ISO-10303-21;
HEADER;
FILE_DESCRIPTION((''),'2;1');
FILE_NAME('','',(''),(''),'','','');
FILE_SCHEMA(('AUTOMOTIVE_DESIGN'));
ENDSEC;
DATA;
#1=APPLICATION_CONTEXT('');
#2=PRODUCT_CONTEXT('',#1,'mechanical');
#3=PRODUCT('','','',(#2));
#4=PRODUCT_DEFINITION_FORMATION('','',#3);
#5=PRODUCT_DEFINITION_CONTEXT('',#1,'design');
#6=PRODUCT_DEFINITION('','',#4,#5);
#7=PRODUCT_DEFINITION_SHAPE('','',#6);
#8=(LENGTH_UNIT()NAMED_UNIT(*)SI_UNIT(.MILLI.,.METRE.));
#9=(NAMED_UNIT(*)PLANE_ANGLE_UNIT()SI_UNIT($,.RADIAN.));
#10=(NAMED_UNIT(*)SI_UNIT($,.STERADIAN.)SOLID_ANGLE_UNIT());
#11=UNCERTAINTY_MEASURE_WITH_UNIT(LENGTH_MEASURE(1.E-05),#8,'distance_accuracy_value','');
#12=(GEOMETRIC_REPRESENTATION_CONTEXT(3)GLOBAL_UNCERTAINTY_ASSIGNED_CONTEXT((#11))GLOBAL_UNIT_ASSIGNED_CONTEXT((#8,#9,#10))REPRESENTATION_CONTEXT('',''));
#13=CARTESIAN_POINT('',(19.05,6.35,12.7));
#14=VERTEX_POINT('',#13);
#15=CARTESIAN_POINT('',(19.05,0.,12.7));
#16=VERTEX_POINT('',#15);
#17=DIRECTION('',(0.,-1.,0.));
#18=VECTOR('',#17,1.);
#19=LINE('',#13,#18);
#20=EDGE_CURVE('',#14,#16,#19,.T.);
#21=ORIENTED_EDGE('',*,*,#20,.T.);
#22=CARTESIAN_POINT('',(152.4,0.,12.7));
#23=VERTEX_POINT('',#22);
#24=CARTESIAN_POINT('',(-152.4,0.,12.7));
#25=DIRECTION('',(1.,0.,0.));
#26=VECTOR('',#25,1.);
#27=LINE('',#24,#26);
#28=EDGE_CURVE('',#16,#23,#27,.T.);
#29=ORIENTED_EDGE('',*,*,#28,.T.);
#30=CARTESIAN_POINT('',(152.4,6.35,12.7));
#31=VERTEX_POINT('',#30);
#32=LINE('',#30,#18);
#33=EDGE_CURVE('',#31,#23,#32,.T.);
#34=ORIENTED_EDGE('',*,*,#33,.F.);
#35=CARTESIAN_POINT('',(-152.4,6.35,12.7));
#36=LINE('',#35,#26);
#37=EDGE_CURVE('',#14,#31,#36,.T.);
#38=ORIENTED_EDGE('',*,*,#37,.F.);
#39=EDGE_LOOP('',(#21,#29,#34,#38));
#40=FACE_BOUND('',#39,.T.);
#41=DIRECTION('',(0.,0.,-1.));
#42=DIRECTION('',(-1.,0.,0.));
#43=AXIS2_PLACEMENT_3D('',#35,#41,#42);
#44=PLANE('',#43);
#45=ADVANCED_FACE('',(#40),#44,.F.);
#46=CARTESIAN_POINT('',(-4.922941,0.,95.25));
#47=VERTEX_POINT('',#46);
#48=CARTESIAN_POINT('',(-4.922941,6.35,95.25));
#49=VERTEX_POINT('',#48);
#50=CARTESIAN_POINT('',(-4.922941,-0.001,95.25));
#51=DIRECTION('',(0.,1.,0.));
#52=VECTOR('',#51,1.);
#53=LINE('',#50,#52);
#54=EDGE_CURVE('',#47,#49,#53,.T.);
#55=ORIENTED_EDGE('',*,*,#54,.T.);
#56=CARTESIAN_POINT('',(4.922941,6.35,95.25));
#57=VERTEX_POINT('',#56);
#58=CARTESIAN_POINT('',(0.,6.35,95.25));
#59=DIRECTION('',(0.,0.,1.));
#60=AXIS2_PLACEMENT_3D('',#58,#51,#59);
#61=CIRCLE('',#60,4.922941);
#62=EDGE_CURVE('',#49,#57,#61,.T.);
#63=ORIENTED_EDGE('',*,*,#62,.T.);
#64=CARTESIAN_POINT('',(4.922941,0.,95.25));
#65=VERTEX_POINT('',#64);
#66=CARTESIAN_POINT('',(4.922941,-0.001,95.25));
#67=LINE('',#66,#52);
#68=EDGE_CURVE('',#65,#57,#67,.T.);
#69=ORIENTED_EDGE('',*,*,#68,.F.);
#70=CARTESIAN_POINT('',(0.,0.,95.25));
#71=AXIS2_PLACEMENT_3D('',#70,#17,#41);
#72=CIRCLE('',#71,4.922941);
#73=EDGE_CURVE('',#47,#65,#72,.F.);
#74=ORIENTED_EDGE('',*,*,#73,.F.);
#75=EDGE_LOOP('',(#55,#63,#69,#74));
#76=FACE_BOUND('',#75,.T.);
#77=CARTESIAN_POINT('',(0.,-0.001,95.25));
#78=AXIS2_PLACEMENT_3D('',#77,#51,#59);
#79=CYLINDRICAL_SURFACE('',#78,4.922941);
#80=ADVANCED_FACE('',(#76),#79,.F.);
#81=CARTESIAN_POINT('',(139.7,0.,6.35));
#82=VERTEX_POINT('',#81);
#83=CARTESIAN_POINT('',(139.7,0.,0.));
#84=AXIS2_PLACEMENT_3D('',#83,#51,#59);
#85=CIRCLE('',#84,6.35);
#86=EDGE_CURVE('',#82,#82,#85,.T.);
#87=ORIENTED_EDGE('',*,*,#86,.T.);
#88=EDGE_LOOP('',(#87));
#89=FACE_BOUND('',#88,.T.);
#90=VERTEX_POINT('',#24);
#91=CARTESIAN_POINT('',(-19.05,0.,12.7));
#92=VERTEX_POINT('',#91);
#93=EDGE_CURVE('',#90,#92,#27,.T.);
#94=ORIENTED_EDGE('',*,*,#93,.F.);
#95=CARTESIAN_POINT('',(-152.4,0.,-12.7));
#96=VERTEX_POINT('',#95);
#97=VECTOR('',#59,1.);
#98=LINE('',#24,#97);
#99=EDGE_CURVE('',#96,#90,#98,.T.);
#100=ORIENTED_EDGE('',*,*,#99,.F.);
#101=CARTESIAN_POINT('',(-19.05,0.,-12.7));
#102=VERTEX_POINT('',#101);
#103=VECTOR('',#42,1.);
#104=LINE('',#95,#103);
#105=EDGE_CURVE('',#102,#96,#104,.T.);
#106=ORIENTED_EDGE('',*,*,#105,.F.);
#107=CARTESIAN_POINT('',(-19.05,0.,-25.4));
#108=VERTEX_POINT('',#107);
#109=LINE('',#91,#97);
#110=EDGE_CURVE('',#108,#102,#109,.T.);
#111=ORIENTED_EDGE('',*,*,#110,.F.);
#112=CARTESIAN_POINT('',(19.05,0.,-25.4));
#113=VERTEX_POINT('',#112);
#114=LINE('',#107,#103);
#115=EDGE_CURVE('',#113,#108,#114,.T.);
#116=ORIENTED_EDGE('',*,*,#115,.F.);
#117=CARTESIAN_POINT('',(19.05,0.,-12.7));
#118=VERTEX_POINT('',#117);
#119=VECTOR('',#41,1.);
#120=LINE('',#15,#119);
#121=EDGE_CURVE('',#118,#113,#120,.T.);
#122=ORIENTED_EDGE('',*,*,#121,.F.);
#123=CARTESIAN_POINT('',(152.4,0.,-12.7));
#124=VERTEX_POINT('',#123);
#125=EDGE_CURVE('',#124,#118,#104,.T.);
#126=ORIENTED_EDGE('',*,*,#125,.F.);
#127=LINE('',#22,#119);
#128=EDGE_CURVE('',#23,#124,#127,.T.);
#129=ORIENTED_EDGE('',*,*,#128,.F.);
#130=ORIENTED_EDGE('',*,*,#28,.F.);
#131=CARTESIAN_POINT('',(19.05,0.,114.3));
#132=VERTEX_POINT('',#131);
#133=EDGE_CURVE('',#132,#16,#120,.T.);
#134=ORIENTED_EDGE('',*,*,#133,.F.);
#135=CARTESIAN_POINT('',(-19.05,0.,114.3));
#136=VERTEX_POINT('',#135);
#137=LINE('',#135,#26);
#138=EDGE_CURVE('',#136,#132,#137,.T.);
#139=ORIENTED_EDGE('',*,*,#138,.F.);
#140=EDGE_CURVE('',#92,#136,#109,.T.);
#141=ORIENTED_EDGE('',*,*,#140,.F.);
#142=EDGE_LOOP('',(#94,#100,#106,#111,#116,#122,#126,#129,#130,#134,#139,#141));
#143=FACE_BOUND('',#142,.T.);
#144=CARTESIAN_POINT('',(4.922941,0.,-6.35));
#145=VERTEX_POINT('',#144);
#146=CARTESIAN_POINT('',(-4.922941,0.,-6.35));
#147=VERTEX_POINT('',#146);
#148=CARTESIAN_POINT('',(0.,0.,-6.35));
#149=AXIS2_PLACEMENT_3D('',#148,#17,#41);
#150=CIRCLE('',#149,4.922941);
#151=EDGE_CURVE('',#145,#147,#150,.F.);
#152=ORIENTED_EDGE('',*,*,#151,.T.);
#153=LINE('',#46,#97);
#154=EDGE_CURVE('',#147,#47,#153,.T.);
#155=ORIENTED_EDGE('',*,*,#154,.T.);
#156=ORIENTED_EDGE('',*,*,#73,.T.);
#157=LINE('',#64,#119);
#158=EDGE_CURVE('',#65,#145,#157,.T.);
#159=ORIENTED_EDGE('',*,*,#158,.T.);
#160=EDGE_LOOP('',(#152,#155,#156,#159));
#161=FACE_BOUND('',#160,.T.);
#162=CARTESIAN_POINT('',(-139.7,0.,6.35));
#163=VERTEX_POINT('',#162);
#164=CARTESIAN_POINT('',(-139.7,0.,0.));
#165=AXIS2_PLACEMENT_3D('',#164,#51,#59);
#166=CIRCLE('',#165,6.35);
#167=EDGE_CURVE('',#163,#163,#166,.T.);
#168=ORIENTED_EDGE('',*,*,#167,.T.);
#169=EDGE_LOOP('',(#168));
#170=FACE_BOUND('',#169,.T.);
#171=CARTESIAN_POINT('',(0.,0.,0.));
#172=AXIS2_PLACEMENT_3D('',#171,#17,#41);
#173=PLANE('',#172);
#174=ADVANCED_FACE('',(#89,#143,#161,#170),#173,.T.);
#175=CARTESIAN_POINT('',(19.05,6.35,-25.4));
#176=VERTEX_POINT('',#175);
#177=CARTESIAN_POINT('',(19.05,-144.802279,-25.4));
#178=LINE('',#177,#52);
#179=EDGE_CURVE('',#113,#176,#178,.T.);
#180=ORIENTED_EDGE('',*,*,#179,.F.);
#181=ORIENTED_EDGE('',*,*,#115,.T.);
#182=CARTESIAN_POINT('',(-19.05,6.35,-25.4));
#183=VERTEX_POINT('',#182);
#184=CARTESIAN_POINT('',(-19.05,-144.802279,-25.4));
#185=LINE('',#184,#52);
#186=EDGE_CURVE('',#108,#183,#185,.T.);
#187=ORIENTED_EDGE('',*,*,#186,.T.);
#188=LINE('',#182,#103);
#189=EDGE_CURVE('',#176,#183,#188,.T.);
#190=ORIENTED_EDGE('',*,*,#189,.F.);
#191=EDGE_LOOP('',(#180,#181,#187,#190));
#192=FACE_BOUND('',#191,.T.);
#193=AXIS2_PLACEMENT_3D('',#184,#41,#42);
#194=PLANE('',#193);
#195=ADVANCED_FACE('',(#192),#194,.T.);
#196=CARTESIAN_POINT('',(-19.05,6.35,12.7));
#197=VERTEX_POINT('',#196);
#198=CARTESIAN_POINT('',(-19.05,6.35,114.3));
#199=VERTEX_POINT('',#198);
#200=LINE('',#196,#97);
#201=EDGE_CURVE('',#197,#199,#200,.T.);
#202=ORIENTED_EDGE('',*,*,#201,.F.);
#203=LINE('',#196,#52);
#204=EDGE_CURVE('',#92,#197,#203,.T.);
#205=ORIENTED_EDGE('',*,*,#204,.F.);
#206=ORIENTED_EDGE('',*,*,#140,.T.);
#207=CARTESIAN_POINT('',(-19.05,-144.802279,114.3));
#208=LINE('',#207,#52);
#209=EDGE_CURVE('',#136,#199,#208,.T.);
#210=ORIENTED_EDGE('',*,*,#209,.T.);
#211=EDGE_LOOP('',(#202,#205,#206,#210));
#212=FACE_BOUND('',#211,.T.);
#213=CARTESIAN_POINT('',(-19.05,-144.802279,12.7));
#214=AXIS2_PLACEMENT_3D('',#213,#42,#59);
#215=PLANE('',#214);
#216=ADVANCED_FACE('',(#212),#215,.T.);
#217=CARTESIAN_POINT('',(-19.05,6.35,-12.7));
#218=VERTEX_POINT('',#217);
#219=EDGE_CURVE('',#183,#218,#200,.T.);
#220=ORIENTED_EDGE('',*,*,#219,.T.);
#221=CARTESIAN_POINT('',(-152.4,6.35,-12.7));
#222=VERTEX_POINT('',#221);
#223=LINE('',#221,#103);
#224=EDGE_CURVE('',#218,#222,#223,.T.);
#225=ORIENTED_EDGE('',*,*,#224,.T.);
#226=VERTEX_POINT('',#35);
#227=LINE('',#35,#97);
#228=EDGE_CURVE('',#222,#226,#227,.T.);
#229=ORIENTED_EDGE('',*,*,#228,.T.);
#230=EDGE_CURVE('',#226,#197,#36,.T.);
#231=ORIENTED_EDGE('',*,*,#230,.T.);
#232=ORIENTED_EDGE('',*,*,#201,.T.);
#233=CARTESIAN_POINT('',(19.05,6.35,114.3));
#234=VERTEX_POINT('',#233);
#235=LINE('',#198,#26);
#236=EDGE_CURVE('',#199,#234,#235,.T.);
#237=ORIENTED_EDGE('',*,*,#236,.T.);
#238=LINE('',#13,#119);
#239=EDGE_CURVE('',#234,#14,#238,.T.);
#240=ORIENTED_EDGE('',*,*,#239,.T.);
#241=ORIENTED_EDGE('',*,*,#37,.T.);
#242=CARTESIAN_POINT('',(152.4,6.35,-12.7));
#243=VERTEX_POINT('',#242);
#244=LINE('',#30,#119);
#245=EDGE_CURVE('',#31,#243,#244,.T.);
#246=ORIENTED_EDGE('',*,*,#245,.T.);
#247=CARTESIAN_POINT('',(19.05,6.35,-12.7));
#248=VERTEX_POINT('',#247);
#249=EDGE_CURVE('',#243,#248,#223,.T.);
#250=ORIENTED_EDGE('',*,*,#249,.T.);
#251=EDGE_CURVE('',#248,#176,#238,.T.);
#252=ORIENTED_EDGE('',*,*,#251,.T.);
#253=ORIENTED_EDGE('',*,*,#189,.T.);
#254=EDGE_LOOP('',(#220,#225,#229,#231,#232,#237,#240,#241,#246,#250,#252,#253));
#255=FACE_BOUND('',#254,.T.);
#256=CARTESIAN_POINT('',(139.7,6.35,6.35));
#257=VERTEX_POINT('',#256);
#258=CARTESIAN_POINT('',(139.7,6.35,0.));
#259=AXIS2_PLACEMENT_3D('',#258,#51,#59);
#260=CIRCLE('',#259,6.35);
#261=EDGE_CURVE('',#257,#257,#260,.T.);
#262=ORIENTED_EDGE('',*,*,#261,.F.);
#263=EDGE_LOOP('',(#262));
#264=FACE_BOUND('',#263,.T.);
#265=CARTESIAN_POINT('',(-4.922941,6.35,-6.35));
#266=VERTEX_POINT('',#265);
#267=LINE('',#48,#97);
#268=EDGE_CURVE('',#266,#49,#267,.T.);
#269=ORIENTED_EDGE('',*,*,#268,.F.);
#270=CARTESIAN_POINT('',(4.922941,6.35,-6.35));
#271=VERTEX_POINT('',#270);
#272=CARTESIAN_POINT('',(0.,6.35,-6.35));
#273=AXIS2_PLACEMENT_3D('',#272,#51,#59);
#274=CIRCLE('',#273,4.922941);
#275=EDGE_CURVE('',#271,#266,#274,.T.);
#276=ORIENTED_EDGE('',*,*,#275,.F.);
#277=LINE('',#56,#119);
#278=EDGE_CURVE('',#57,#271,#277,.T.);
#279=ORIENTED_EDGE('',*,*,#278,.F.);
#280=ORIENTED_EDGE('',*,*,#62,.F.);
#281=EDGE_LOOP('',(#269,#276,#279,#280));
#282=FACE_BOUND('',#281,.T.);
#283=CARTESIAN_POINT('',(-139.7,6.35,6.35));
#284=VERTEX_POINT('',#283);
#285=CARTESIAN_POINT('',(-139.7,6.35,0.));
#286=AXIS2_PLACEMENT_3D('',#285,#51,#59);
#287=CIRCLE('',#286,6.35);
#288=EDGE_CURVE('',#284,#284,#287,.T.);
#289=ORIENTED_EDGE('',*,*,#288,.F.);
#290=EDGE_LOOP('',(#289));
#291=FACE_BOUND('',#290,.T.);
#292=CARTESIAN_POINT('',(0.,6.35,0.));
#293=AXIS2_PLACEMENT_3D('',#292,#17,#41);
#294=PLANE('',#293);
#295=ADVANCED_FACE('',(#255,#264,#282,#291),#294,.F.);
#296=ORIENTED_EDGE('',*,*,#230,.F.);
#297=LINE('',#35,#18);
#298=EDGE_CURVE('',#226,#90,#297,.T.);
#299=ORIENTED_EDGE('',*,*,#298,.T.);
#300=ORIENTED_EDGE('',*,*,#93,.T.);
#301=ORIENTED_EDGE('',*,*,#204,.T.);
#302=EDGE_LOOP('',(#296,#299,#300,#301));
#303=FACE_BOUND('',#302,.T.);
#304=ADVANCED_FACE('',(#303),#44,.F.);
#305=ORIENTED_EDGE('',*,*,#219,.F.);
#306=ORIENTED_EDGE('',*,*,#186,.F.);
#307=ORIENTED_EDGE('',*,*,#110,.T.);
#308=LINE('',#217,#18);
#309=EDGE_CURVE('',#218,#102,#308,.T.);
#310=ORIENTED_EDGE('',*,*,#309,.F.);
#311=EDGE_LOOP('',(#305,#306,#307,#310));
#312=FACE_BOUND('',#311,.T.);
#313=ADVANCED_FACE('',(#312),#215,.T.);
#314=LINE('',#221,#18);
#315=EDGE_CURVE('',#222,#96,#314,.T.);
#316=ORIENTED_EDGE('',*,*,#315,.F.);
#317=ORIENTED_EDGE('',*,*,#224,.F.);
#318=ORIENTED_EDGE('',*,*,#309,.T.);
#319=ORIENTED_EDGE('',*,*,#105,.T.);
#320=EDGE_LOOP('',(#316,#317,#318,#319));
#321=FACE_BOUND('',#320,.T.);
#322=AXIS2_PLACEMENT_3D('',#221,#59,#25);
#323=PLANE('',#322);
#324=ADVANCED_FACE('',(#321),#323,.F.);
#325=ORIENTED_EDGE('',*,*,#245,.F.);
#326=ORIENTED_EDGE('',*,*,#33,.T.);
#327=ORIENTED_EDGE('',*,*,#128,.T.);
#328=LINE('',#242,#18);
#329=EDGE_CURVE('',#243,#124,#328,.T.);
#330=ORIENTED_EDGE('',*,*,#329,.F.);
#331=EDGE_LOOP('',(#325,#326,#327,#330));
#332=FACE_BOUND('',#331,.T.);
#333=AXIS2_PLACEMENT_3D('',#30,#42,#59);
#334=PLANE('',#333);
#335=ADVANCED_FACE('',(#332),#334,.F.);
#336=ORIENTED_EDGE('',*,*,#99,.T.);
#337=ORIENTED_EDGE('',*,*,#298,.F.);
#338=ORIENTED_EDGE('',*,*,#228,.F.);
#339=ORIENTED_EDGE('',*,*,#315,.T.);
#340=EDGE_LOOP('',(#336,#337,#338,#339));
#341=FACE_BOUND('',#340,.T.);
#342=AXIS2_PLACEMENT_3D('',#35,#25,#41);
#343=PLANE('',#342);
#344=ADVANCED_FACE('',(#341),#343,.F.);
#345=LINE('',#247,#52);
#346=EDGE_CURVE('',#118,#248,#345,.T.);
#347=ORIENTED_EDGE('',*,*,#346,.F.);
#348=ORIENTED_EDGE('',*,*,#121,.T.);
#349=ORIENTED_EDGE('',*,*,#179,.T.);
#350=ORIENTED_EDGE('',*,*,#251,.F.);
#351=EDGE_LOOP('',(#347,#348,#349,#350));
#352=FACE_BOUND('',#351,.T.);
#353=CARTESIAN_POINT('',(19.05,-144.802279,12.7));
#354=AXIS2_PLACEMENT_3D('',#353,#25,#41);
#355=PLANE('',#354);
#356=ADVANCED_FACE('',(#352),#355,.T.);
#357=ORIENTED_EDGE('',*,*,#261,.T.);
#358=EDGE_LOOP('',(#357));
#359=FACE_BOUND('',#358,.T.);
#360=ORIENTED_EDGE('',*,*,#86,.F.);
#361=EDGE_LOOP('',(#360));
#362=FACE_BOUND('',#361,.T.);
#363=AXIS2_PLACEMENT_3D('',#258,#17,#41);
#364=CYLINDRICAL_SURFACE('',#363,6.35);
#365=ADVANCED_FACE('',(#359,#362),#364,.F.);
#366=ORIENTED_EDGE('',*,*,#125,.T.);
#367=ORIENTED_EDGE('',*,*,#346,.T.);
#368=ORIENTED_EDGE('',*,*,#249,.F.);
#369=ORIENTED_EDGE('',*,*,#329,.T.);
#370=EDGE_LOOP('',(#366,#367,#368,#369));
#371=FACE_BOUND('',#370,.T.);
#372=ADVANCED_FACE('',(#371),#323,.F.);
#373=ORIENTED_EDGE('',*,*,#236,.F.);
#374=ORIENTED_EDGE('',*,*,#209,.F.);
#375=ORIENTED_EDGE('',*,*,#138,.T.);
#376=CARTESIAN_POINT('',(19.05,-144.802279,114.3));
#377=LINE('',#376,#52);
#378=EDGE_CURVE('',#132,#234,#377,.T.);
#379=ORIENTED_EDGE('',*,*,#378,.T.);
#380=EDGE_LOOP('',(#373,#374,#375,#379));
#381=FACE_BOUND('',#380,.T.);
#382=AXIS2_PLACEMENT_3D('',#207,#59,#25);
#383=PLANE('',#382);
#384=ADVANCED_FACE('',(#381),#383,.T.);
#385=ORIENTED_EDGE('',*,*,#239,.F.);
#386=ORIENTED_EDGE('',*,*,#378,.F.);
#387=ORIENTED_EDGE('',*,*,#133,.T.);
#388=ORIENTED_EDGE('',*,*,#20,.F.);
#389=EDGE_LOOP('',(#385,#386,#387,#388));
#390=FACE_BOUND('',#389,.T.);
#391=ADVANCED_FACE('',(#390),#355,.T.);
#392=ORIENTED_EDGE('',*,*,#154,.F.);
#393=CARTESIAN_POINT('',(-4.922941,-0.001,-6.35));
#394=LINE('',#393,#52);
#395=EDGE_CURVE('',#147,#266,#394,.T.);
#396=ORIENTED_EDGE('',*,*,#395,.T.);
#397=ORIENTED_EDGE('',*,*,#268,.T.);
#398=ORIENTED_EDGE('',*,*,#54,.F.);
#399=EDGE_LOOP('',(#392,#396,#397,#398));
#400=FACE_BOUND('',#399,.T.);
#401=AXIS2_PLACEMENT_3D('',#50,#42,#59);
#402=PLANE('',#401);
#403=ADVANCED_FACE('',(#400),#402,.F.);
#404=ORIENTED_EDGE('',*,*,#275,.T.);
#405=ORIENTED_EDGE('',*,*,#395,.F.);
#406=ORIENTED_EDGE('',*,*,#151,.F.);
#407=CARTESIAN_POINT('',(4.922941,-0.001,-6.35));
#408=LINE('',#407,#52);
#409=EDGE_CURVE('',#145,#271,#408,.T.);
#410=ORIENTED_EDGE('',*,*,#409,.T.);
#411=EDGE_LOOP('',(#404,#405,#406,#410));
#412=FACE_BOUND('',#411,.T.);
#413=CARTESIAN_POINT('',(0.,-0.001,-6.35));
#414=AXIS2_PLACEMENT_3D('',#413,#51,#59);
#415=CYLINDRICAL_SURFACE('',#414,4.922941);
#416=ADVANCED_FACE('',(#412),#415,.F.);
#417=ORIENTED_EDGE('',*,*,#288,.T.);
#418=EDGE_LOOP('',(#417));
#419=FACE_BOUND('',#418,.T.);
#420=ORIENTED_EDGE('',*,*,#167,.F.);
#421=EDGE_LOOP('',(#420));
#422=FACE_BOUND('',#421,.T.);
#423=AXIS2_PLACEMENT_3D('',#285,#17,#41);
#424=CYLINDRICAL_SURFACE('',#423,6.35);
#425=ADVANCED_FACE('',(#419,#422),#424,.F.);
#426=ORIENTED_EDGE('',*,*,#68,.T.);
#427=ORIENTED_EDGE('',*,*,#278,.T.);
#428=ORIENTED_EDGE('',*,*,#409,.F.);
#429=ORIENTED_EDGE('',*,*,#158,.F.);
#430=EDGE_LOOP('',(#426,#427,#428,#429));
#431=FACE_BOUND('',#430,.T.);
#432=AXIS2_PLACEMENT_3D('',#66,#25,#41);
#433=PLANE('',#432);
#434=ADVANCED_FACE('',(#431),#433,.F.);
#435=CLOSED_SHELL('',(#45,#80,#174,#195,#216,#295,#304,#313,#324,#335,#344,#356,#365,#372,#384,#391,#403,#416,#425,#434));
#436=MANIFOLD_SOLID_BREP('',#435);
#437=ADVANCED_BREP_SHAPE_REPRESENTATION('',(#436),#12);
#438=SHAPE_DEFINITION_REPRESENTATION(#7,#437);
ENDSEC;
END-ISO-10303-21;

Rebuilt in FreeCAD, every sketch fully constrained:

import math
import FreeCAD as App
import Part
import Sketcher
from FreeCAD import Vector
Q = App.Units.Quantity


def add_polygon(sketch, points):
    """Adds a closed chain of lines whose ends are joined by coincident constraints."""
    first, n = sketch.GeometryCount, len(points)
    for a, b in zip(points, points[1:] + points[:1]):
        sketch.addGeometry(Part.LineSegment(App.Vector(*a, 0), App.Vector(*b, 0)), False)
    for i in range(n):
        sketch.addConstraint(Sketcher.Constraint("Coincident", first + i, 2, first + (i + 1) % n, 1))

doc = App.newDocument("Part")
params = doc.addObject("Spreadsheet::Sheet", "Params")
for row, (alias, value) in enumerate([
    ("sketch1_diameter", "0.5 in"),
    ("sketch1_width", "12 in"),
    ("sketch1_height", "1 in"),
    ("pad1_length", "0.25 in"),
    ("sketch2_width", "1.5 in"),
    ("sketch2_height", "5.5 in"),
    ("pad2_length", "0.25 in"),
    ("sketch3_height", "4 in"),
], start=1):
    params.set(f"A{row}", alias)
    params.set(f"B{row}", "=" + value)
    params.setAlias(f"B{row}", alias)

body = doc.addObject("PartDesign::Body", "Body")

# Sketch on XZ plane
sketch1 = doc.addObject("Sketcher::SketchObject", "Sketch")
body.addObject(sketch1)
sketch1.AttachmentSupport = (doc.XZ_Plane, [""])
sketch1.MapMode = "FlatFace"
add_polygon(sketch1, [(-152, -13), (-152, 13), (152, 13), (152, -13)])  # lines 0-3
sketch1.addGeometry(Part.Circle(Vector(-140, 0, 0), Vector(0, 0, 1), 6), False)  # 4
sketch1.addGeometry(Part.Circle(Vector(140, 0, 0), Vector(0, 0, 1), 6), False)  # 5
sketch1.addConstraint(Sketcher.Constraint("Vertical", 0))
sketch1.addConstraint(Sketcher.Constraint("Horizontal", 1))
sketch1.addConstraint(Sketcher.Constraint("Vertical", 2))
sketch1.addConstraint(Sketcher.Constraint("Horizontal", 3))
sketch1.addConstraint(Sketcher.Constraint("Equal", 4, 5))
sketch1.addConstraint(Sketcher.Constraint("Symmetric", 4, 3, 5, 3, -1, 1))
sketch1.addConstraint(Sketcher.Constraint("Symmetric", 0, 2, 2, 2, -1, 1))
sketch1.addConstraint(Sketcher.Constraint("PointOnObject", 4, 3, -1))
sketch1.addConstraint(Sketcher.Constraint("Diameter", 4, Q("0.5 in")))
sketch1.addConstraint(Sketcher.Constraint("DistanceX", 1, 1, 1, 2, Q("12 in")))
sketch1.addConstraint(Sketcher.Constraint("DistanceY", 0, 1, 0, 2, Q("1 in")))
sketch1.addConstraint(Sketcher.Constraint("DistanceX", 4, 3, 5, 3, Q("11 in")))
sketch1.setExpression("Constraints[12]", "Params.sketch1_diameter")
sketch1.setExpression("Constraints[13]", "Params.sketch1_width")
sketch1.setExpression("Constraints[14]", "Params.sketch1_height")
pad1 = doc.addObject("PartDesign::Pad", "Pad")
body.addObject(pad1)
pad1.Profile = sketch1
pad1.setExpression("Length", "Params.pad1_length")
pad1.Reversed = True

# Sketch on XZ plane
sketch2 = doc.addObject("Sketcher::SketchObject", "Sketch001")
body.addObject(sketch2)
sketch2.AttachmentSupport = (doc.XZ_Plane, [""])
sketch2.MapMode = "FlatFace"
sketch2.AttachmentOffset = App.Placement(Vector(0, 0, -0.25 * 25.4), App.Rotation())
add_polygon(sketch2, [(-19, 114), (19, 114), (19, -25), (-19, -25)])  # lines 0-3
sketch2.addConstraint(Sketcher.Constraint("Horizontal", 0))
sketch2.addConstraint(Sketcher.Constraint("Vertical", 1))
sketch2.addConstraint(Sketcher.Constraint("Horizontal", 2))
sketch2.addConstraint(Sketcher.Constraint("Vertical", 3))
sketch2.addConstraint(Sketcher.Constraint("DistanceX", 0, 1, 0, 2, Q("1.5 in")))
sketch2.addConstraint(Sketcher.Constraint("DistanceY", 1, 2, 1, 1, Q("5.5 in")))
sketch2.addConstraint(Sketcher.Constraint("DistanceY", 1, 2, -1, 1, Q("1 in")))
sketch2.addConstraint(Sketcher.Constraint("DistanceX", -1, 1, 0, 2, Q("0.75 in")))
sketch2.setExpression("Constraints[8]", "Params.sketch2_width")
sketch2.setExpression("Constraints[9]", "Params.sketch2_height")
pad2 = doc.addObject("PartDesign::Pad", "Pad001")
body.addObject(pad2)
pad2.Profile = sketch2
pad2.setExpression("Length", "Params.pad2_length")

# Sketch on XZ plane
sketch3 = doc.addObject("Sketcher::SketchObject", "Sketch002")
body.addObject(sketch3)
sketch3.AttachmentSupport = (doc.XZ_Plane, [""])
sketch3.MapMode = "FlatFace"
sketch3.AttachmentOffset = App.Placement(Vector(0, 0, -0.25 * 25.4), App.Rotation())
sketch3.addGeometry(Part.LineSegment(Vector(-4.9, -6.3, 0), Vector(-4.9, 95.2, 0)), False)
sketch3.addGeometry(Part.ArcOfCircle(Part.Circle(Vector(0, 95.2, 0), Vector(0, 0, 1), 4.9), math.radians(0), math.radians(180)), False)
sketch3.addGeometry(Part.LineSegment(Vector(4.9, 95.2, 0), Vector(4.9, -6.3, 0)), False)
sketch3.addGeometry(Part.ArcOfCircle(Part.Circle(Vector(0, -6.3, 0), Vector(0, 0, 1), 4.9), math.radians(180), math.radians(360)), False)
sketch3.addConstraint(Sketcher.Constraint("Tangent", 0, 2, 1, 2))
sketch3.addConstraint(Sketcher.Constraint("Tangent", 1, 1, 2, 1))
sketch3.addConstraint(Sketcher.Constraint("Tangent", 2, 2, 3, 2))
sketch3.addConstraint(Sketcher.Constraint("Tangent", 3, 1, 0, 1))
sketch3.addConstraint(Sketcher.Constraint("Vertical", 0))
sketch3.addConstraint(Sketcher.Constraint("Vertical", 2))
sketch3.addConstraint(Sketcher.Constraint("PointOnObject", 1, 3, -2))
sketch3.addConstraint(Sketcher.Constraint("DistanceY", 0, 1, 0, 2, Q("4 in")))
sketch3.addConstraint(Sketcher.Constraint("DistanceY", -1, 1, 1, 3, Q("3.75 in")))
sketch3.addConstraint(Sketcher.Constraint("Radius", 1, Q("4.922941 mm")))
sketch3.setExpression("Constraints[7]", "Params.sketch3_height")
pocket1 = doc.addObject("PartDesign::Pocket", "Pocket")
body.addObject(pocket1)
pocket1.Profile = sketch3
pocket1.Type = "UpToFirst"
pocket1.Reversed = True

doc.recompute()
